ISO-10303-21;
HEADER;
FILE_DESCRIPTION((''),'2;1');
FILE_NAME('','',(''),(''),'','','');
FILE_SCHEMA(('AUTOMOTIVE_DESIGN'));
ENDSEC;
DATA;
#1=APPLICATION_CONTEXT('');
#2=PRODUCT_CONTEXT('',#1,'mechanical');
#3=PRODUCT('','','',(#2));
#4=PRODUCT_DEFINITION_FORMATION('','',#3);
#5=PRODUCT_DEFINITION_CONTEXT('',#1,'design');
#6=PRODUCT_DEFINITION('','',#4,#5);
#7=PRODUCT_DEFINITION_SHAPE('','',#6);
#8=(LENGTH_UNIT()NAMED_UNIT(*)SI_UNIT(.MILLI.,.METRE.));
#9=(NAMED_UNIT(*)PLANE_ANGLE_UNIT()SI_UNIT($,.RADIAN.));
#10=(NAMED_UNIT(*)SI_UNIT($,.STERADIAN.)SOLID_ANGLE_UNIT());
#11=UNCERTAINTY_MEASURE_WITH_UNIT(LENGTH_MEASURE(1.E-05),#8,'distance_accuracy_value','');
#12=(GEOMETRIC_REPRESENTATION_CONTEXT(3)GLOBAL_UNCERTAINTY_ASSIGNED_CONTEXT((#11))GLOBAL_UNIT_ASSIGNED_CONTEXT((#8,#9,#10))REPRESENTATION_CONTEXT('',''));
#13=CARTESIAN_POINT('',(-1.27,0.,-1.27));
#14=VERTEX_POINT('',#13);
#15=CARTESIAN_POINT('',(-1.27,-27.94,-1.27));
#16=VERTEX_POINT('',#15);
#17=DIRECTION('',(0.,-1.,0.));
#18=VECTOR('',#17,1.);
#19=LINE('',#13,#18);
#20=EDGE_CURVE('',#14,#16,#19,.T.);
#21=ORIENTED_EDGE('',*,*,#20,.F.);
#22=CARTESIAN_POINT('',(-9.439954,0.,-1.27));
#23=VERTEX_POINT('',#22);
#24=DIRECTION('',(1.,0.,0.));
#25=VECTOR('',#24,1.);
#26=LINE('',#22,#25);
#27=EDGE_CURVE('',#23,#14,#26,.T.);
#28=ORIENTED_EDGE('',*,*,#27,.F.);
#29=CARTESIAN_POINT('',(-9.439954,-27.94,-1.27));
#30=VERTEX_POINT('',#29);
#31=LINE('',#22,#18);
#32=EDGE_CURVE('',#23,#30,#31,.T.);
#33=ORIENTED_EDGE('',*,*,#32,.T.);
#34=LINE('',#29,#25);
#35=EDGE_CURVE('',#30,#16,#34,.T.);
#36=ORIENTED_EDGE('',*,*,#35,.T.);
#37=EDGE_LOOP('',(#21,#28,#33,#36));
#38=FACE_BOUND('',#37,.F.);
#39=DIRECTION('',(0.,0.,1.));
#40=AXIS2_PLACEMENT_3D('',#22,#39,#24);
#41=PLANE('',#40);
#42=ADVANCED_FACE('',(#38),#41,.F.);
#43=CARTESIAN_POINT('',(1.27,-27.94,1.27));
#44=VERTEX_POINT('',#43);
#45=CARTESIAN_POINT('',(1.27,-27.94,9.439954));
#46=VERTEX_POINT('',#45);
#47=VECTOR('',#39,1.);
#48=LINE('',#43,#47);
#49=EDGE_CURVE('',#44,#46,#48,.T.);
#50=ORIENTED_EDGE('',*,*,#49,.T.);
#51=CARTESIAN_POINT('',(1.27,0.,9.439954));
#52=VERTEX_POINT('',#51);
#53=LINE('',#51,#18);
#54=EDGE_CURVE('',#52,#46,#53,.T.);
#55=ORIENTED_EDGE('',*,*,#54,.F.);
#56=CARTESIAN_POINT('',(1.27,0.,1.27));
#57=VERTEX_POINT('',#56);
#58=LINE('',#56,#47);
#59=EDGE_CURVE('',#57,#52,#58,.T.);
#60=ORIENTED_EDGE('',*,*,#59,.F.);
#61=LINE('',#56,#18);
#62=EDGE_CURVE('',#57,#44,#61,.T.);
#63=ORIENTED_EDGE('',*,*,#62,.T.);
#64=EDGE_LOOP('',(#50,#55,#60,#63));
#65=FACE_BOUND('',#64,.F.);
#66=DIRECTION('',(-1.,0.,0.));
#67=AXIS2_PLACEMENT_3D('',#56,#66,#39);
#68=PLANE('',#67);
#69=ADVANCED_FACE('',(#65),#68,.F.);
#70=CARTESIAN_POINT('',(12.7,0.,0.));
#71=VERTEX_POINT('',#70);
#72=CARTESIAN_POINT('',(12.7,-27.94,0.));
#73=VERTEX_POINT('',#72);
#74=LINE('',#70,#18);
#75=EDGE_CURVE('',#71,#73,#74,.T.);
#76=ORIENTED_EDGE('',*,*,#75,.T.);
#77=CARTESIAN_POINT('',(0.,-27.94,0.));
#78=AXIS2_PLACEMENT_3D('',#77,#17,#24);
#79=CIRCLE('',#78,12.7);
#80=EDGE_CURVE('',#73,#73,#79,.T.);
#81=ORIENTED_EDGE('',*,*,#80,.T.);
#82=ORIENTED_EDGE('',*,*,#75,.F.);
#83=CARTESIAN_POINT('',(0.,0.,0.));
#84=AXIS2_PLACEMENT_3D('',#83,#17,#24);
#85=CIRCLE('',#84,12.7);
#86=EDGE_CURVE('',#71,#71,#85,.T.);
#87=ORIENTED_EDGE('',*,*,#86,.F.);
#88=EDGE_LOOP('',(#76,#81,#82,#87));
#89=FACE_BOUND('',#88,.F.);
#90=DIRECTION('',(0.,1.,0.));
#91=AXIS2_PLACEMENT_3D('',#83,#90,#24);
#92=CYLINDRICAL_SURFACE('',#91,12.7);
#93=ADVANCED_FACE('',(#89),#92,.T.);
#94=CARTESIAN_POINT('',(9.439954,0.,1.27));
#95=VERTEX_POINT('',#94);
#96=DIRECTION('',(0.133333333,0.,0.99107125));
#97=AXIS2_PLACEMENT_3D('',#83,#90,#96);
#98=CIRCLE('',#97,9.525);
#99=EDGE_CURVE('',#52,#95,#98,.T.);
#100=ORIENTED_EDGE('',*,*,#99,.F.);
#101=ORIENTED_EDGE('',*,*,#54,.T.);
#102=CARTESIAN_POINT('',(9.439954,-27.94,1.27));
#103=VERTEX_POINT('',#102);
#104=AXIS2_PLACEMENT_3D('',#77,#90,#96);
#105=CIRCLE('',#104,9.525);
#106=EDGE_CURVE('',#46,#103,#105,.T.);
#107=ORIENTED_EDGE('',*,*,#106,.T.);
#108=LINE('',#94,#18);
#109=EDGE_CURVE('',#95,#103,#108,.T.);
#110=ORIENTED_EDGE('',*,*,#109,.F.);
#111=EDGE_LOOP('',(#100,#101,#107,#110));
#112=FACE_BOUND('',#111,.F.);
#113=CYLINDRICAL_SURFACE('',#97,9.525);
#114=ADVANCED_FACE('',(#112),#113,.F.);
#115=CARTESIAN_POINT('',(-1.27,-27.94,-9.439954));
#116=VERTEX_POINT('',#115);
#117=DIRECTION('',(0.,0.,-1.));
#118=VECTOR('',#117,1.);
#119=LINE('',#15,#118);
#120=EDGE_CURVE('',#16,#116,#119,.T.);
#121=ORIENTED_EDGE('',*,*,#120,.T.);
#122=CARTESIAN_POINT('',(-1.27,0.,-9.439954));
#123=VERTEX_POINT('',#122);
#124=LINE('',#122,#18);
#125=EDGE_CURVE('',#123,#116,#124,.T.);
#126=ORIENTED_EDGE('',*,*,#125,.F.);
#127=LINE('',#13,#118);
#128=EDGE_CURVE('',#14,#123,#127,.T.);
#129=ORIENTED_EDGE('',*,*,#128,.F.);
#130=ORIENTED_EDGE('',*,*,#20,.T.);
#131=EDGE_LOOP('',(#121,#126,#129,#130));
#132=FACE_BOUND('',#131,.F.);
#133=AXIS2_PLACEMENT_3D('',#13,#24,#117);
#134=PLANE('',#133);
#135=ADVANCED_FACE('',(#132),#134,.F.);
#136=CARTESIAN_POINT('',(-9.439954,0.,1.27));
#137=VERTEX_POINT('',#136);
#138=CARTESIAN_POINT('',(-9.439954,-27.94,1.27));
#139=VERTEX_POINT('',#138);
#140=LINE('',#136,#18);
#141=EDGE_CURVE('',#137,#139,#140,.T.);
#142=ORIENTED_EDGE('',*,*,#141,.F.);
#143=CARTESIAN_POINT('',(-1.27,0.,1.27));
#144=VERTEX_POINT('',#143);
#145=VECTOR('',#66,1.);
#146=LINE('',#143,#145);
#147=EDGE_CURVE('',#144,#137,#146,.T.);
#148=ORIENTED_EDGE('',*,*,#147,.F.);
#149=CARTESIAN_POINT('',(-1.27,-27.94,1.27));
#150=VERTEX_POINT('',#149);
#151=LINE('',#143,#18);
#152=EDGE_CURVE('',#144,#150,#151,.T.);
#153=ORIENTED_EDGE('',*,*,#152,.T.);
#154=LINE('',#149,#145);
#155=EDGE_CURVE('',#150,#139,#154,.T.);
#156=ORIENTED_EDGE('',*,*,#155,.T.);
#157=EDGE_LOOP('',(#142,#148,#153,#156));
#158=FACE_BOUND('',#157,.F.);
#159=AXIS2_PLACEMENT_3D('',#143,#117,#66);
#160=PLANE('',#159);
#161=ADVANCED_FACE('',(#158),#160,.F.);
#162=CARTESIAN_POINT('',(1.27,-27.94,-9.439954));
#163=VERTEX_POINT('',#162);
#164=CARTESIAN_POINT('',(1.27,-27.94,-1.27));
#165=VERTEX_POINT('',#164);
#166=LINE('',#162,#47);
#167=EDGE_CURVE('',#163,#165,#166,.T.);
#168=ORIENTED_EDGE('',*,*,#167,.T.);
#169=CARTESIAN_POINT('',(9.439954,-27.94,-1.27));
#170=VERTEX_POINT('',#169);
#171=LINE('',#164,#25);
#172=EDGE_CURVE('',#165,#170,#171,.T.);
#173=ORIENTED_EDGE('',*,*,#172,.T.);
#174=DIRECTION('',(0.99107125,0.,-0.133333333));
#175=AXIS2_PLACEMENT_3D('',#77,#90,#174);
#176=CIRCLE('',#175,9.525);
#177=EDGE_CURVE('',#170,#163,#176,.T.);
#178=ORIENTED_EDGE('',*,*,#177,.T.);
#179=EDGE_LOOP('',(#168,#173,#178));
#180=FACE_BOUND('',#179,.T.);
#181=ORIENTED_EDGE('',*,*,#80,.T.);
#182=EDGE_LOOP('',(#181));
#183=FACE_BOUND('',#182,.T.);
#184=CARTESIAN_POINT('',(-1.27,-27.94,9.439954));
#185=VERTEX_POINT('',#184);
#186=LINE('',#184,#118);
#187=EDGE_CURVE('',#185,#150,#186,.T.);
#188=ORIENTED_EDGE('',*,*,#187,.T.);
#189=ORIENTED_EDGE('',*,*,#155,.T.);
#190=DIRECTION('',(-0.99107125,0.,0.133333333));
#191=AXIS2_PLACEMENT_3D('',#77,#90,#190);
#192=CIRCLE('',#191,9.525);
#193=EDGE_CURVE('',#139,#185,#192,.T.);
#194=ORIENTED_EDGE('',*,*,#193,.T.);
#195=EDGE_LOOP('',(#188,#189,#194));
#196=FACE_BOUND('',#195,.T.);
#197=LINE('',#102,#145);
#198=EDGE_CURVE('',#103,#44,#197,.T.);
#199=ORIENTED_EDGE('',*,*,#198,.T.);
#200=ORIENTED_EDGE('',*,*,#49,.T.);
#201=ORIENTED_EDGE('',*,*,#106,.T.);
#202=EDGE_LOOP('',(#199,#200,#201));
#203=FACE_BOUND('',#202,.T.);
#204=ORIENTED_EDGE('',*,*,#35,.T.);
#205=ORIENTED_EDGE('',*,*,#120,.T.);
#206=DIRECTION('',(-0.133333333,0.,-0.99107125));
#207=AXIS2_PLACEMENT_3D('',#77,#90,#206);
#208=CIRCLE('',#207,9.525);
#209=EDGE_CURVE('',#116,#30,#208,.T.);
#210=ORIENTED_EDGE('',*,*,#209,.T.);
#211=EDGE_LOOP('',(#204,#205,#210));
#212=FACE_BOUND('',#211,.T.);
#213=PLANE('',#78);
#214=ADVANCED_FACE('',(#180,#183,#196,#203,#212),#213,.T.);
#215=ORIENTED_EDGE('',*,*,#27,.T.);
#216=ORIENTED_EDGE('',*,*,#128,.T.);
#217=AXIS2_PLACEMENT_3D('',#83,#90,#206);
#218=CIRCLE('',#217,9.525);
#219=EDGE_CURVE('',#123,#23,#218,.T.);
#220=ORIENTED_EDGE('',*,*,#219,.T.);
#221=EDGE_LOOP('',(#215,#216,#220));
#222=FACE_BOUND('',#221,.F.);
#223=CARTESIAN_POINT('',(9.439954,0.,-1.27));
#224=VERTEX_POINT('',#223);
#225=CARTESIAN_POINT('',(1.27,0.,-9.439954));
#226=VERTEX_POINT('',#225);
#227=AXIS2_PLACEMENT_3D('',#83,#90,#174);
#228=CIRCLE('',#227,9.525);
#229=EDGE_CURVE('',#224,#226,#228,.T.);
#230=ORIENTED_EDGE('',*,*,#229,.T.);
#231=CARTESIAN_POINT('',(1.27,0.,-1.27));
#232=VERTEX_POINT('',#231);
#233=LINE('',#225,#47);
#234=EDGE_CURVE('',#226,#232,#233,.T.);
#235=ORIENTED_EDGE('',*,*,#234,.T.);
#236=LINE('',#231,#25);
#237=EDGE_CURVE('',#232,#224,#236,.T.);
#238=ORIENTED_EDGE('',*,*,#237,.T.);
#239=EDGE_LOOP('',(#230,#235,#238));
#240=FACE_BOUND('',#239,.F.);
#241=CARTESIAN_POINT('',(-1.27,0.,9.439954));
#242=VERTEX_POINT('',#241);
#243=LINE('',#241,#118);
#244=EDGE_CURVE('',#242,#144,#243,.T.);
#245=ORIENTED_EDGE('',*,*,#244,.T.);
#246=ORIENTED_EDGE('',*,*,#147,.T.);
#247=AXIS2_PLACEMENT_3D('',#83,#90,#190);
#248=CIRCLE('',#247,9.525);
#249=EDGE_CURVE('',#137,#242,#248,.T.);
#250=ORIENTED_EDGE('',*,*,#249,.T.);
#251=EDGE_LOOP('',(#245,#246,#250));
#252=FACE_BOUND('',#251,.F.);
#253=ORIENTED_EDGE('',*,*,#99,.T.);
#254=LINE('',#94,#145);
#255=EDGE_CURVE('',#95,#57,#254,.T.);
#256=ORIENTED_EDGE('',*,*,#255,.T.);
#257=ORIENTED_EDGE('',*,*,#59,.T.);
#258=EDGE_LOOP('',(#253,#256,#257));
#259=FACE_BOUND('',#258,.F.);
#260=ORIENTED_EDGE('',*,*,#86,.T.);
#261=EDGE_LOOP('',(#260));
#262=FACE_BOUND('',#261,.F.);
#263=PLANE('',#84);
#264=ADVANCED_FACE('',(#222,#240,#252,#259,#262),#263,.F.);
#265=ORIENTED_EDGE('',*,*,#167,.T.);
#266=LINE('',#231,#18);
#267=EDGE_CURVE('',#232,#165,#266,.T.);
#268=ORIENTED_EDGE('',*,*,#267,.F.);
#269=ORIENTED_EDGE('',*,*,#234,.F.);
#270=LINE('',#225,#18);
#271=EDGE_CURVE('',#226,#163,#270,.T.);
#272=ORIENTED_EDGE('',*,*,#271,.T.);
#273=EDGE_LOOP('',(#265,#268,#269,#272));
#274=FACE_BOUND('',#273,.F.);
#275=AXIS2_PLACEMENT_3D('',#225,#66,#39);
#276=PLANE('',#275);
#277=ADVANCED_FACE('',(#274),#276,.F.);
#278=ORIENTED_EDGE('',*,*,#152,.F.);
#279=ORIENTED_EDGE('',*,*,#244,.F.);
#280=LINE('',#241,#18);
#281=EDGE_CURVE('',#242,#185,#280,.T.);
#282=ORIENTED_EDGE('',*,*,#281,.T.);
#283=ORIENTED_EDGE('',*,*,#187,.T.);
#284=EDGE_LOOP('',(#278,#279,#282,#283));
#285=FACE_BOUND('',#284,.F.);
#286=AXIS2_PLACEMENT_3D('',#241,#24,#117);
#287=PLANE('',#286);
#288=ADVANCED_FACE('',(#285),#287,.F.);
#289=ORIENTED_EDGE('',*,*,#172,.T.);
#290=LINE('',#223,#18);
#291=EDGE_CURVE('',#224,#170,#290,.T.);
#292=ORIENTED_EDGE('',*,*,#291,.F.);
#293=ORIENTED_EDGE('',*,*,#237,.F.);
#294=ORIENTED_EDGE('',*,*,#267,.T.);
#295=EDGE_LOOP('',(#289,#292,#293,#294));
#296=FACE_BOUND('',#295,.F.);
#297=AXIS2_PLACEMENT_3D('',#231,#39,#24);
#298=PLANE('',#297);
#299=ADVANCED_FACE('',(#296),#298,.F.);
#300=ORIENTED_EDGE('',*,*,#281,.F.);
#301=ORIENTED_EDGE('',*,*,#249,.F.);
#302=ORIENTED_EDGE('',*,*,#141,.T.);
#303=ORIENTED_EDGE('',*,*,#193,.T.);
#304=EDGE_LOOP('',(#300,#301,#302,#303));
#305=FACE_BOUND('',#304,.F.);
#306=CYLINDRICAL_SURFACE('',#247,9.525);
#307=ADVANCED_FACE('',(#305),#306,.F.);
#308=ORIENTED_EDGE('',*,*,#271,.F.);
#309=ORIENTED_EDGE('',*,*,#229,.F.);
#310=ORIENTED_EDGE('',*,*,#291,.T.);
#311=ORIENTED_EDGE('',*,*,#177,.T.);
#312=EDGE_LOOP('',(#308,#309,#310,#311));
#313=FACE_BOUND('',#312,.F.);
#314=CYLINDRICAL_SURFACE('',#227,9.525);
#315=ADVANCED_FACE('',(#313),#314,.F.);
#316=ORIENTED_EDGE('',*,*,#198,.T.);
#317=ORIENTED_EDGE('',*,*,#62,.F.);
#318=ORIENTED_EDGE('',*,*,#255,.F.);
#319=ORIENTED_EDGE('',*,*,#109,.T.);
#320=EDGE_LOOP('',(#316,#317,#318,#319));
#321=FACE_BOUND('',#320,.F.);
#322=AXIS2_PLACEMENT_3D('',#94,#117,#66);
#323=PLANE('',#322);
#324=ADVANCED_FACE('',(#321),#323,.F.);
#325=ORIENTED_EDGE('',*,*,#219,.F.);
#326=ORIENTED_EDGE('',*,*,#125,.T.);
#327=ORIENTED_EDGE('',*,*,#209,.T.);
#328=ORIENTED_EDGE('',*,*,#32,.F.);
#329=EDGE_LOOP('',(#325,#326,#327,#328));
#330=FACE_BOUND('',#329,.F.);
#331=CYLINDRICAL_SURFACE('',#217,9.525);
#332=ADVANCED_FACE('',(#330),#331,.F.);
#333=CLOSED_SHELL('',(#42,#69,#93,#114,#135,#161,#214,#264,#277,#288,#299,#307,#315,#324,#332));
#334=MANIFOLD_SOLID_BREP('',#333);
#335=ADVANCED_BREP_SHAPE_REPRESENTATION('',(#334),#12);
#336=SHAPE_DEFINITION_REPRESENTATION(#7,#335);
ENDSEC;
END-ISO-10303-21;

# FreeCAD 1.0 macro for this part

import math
import FreeCAD as App
import Part
import Sketcher
Q = App.Units.Quantity

doc = App.newDocument("Part")
body = doc.addObject("PartDesign::Body", "Body")

# Sketch on XZ plane
sketch1 = body.newObject("Sketcher::SketchObject", "Sketch")
sketch1.AttachmentSupport = (doc.getObject("XZ_Plane"), [""])
sketch1.MapMode = "FlatFace"
sketch1.addGeometry(Part.Circle(App.Vector(0, 0, 0), App.Vector(0, 0, 1), 12.7), False)
sketch1.addGeometry(Part.LineSegment(App.Vector(-1.27, -1.27, 0), App.Vector(-1.27, -9.439954, 0)), False)
sketch1.addGeometry(Part.ArcOfCircle(Part.Circle(App.Vector(0, 0, 0), App.Vector(0, 0, 1), 9.525), math.radians(-172.337744), math.radians(-97.662256)), False)
sketch1.addGeometry(Part.LineSegment(App.Vector(-9.439954, -1.27, 0), App.Vector(-1.27, -1.27, 0)), False)
sketch1.addGeometry(Part.LineSegment(App.Vector(1.27, -1.27, 0), App.Vector(9.439954, -1.27, 0)), False)
sketch1.addGeometry(Part.ArcOfCircle(Part.Circle(App.Vector(0, 0, 0), App.Vector(0, 0, 1), 9.525), math.radians(-82.337744), math.radians(-7.662256)), False)
sketch1.addGeometry(Part.LineSegment(App.Vector(1.27, -9.439954, 0), App.Vector(1.27, -1.27, 0)), False)
sketch1.addGeometry(Part.ArcOfCircle(Part.Circle(App.Vector(0, 0, 0), App.Vector(0, 0, 1), 9.525), math.radians(97.662256), math.radians(172.337744)), False)
sketch1.addGeometry(Part.LineSegment(App.Vector(-1.27, 9.439954, 0), App.Vector(-1.27, 1.27, 0)), False)
sketch1.addGeometry(Part.LineSegment(App.Vector(-1.27, 1.27, 0), App.Vector(-9.439954, 1.27, 0)), False)
sketch1.addGeometry(Part.ArcOfCircle(Part.Circle(App.Vector(0, 0, 0), App.Vector(0, 0, 1), 9.525), math.radians(7.662256), math.radians(82.337744)), False)
sketch1.addGeometry(Part.LineSegment(App.Vector(9.439954, 1.27, 0), App.Vector(1.27, 1.27, 0)), False)
sketch1.addGeometry(Part.LineSegment(App.Vector(1.27, 1.27, 0), App.Vector(1.27, 9.439954, 0)), False)
sketch1.addConstraint(Sketcher.Constraint("Coincident", 1, 2, 2, 2))
sketch1.addConstraint(Sketcher.Constraint("Coincident", 2, 1, 3, 1))
sketch1.addConstraint(Sketcher.Constraint("Coincident", 3, 2, 1, 1))
sketch1.addConstraint(Sketcher.Constraint("Coincident", 4, 2, 5, 2))
sketch1.addConstraint(Sketcher.Constraint("Coincident", 5, 1, 6, 1))
sketch1.addConstraint(Sketcher.Constraint("Coincident", 6, 2, 4, 1))
sketch1.addConstraint(Sketcher.Constraint("Coincident", 7, 1, 8, 1))
sketch1.addConstraint(Sketcher.Constraint("Coincident", 8, 2, 9, 1))
sketch1.addConstraint(Sketcher.Constraint("Coincident", 9, 2, 7, 2))
sketch1.addConstraint(Sketcher.Constraint("Coincident", 10, 1, 11, 1))
sketch1.addConstraint(Sketcher.Constraint("Coincident", 11, 2, 12, 1))
sketch1.addConstraint(Sketcher.Constraint("Coincident", 12, 2, 10, 2))
sketch1.addConstraint(Sketcher.Constraint("Vertical", 1))
sketch1.addConstraint(Sketcher.Constraint("Horizontal", 3))
sketch1.addConstraint(Sketcher.Constraint("Horizontal", 4))
sketch1.addConstraint(Sketcher.Constraint("Vertical", 6))
sketch1.addConstraint(Sketcher.Constraint("Vertical", 8))
sketch1.addConstraint(Sketcher.Constraint("Horizontal", 9))
sketch1.addConstraint(Sketcher.Constraint("Horizontal", 11))
sketch1.addConstraint(Sketcher.Constraint("Vertical", 12))
sketch1.addConstraint(Sketcher.Constraint("Coincident", 0, 3, -1, 1))
sketch1.addConstraint(Sketcher.Constraint("Coincident", 2, 3, -1, 1))
sketch1.addConstraint(Sketcher.Constraint("Coincident", 5, 3, -1, 1))
sketch1.addConstraint(Sketcher.Constraint("Coincident", 7, 3, -1, 1))
sketch1.addConstraint(Sketcher.Constraint("Coincident", 10, 3, -1, 1))
sketch1.addConstraint(Sketcher.Constraint("Equal", 2, 5))
sketch1.addConstraint(Sketcher.Constraint("Equal", 5, 7))
sketch1.addConstraint(Sketcher.Constraint("Equal", 7, 10))
sketch1.addConstraint(Sketcher.Constraint("Symmetric", 6, 2, 8, 2, -1, 1))
sketch1.addConstraint(Sketcher.Constraint("Symmetric", 3, 2, 11, 2, -1, 1))
sketch1.addConstraint(Sketcher.Constraint("Symmetric", 3, 2, 6, 2, -2))
sketch1.addConstraint(Sketcher.Constraint("Equal", 11, 1))
sketch1.addConstraint(Sketcher.Constraint("Diameter", 0, Q("1 in")))
sketch1.addConstraint(Sketcher.Constraint("Radius", 2, Q("0.375 in")))
sketch1.addConstraint(Sketcher.Constraint("DistanceX", 1, 2, 5, 1, Q("0.1 in")))
pad1 = body.newObject("PartDesign::Pad", "Pad")
pad1.Profile = sketch1
pad1.Length = Q("1.1 in")

doc.recompute()
